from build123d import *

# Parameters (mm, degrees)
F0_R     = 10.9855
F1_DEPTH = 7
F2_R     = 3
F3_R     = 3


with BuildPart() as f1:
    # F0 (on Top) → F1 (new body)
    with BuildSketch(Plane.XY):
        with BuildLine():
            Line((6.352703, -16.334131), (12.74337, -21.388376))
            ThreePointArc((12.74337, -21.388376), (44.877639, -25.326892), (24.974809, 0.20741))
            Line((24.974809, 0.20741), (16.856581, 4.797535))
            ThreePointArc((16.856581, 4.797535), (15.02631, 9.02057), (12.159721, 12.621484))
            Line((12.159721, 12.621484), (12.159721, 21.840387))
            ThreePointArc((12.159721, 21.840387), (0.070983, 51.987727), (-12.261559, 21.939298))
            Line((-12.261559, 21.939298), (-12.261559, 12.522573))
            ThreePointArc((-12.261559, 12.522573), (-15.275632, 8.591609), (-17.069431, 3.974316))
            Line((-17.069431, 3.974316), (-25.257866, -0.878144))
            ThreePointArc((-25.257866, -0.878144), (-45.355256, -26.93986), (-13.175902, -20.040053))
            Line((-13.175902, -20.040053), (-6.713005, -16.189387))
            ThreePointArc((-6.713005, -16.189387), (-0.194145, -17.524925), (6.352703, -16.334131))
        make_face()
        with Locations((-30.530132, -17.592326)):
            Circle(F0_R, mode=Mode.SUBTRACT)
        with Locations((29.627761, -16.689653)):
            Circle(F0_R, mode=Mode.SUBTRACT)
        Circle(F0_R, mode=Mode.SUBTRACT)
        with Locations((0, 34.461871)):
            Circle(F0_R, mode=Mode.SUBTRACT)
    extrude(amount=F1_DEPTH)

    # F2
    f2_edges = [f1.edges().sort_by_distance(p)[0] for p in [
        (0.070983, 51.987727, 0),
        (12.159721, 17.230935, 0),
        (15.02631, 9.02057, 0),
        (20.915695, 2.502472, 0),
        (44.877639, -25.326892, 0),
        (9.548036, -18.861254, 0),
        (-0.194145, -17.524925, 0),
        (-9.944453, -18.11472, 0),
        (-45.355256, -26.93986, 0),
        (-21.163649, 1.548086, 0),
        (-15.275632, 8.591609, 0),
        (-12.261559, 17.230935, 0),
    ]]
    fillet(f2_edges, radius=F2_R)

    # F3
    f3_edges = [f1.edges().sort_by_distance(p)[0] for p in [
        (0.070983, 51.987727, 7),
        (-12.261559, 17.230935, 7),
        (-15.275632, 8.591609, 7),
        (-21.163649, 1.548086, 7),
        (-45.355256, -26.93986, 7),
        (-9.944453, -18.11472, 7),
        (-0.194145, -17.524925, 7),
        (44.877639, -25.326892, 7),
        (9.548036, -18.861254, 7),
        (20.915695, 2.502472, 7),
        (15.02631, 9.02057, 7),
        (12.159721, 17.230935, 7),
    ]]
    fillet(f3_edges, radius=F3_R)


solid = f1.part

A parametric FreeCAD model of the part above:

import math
import FreeCAD as App
import Part
import Sketcher
from FreeCAD import Vector


def edges_at(feature, points):
    """Names of the edges that pass closest to the given points."""
    edges = feature.Shape.Edges
    near = lambda p: min(range(len(edges)), key=lambda i: edges[i].distToShape(Part.Vertex(*p))[0])
    return sorted({f"Edge{near(p) + 1}" for p in points})

doc = App.newDocument("Part")
body = doc.addObject("PartDesign::Body", "Body")

sketch1 = body.newObject("Sketcher::SketchObject", "Sketch")
sketch1.AttachmentSupport = (doc.getObject("XY_Plane"), [""])
sketch1.MapMode = "FlatFace"
sketch1.addGeometry(Part.LineSegment(Vector(6.352703, -16.334131, 0), Vector(12.74337, -21.388376, 0)), False)
sketch1.addGeometry(Part.ArcOfCircle(Part.Circle(Vector(29.627761, -16.689652, 0), Vector(0, 0, 1), 17.526), math.radians(-164.448752), math.radians(105.395985)), False)
sketch1.addGeometry(Part.LineSegment(Vector(24.974809, 0.20741, 0), Vector(16.856581, 4.797535, 0)), False)
sketch1.addGeometry(Part.ArcOfCircle(Part.Circle(Vector(0.000004, 0.000003, 0), Vector(0, 0, 1), 17.525995), math.radians(15.886825), math.radians(46.067506)), False)
sketch1.addGeometry(Part.LineSegment(Vector(12.159721, 12.621484, 0), Vector(12.159721, 21.840387, 0)), False)
sketch1.addGeometry(Part.ArcOfCircle(Part.Circle(Vector(0, 34.461871, 0), Vector(0, 0, 1), 17.526), math.radians(-46.067503), math.radians(225.603387)), False)
sketch1.addGeometry(Part.LineSegment(Vector(-12.261559, 21.939298, 0), Vector(-12.261559, 12.522573, 0)), False)
sketch1.addGeometry(Part.ArcOfCircle(Part.Circle(Vector(-0.000009, 0.000005, 0), Vector(0, 0, 1), 17.525989), math.radians(134.396602), math.radians(166.893212)), False)
sketch1.addGeometry(Part.LineSegment(Vector(-17.069431, 3.974316, 0), Vector(-25.257866, -0.878144, 0)), False)
sketch1.addGeometry(Part.ArcOfCircle(Part.Circle(Vector(-30.530132, -17.592326, 0), Vector(0, 0, 1), 17.526), math.radians(72.492813), math.radians(351.971677)), False)
sketch1.addGeometry(Part.LineSegment(Vector(-13.175902, -20.040053, 0), Vector(-6.713005, -16.189387, 0)), False)
sketch1.addGeometry(Part.ArcOfCircle(Part.Circle(Vector(-0.000001, -0.000004, 0), Vector(0, 0, 1), 17.525997), math.radians(-112.521572), math.radians(-68.74784)), False)
sketch1.addGeometry(Part.Circle(Vector(-30.530132, -17.592326, 0), Vector(0, 0, 1), 10.9855), False)
sketch1.addGeometry(Part.Circle(Vector(29.627761, -16.689653, 0), Vector(0, 0, 1), 10.9855), False)
sketch1.addGeometry(Part.Circle(Vector(0, 0, 0), Vector(0, 0, 1), 10.9855), False)
sketch1.addGeometry(Part.Circle(Vector(0, 34.461871, 0), Vector(0, 0, 1), 10.9855), False)
sketch1.addConstraint(Sketcher.Constraint("Coincident", 0, 2, 1, 1))
sketch1.addConstraint(Sketcher.Constraint("Coincident", 1, 2, 2, 1))
sketch1.addConstraint(Sketcher.Constraint("Coincident", 2, 2, 3, 1))
sketch1.addConstraint(Sketcher.Constraint("Coincident", 3, 2, 4, 1))
sketch1.addConstraint(Sketcher.Constraint("Coincident", 4, 2, 5, 1))
sketch1.addConstraint(Sketcher.Constraint("Coincident", 5, 2, 6, 1))
sketch1.addConstraint(Sketcher.Constraint("Coincident", 6, 2, 7, 1))
sketch1.addConstraint(Sketcher.Constraint("Coincident", 7, 2, 8, 1))
sketch1.addConstraint(Sketcher.Constraint("Coincident", 8, 2, 9, 1))
sketch1.addConstraint(Sketcher.Constraint("Coincident", 9, 2, 10, 1))
sketch1.addConstraint(Sketcher.Constraint("Coincident", 10, 2, 11, 1))
sketch1.addConstraint(Sketcher.Constraint("Coincident", 11, 2, 0, 1))
sketch1.addConstraint(Sketcher.Constraint("Vertical", 4))
sketch1.addConstraint(Sketcher.Constraint("Vertical", 6))
sketch1.addConstraint(Sketcher.Constraint("Coincident", 3, 3, -1, 1))
sketch1.addConstraint(Sketcher.Constraint("Coincident", 11, 3, -1, 1))
sketch1.addConstraint(Sketcher.Constraint("Coincident", 14, 3, -1, 1))
sketch1.addConstraint(Sketcher.Constraint("Coincident", 12, 3, 9, 3))
sketch1.addConstraint(Sketcher.Constraint("Coincident", 13, 3, 1, 3))
sketch1.addConstraint(Sketcher.Constraint("Coincident", 15, 3, 5, 3))
sketch1.addConstraint(Sketcher.Constraint("PointOnObject", 5, 3, -2))
sketch1.addConstraint(Sketcher.Constraint("Diameter", 12, 21.971))
sketch1.addConstraint(Sketcher.Constraint("Diameter", 13, 21.971))
sketch1.addConstraint(Sketcher.Constraint("Diameter", 14, 21.971))
sketch1.addConstraint(Sketcher.Constraint("Diameter", 15, 21.971))
sketch1.addConstraint(Sketcher.Constraint("Radius", 1, 17.526))
sketch1.addConstraint(Sketcher.Constraint("Radius", 5, 17.526))
sketch1.addConstraint(Sketcher.Constraint("Radius", 9, 17.526))
sketch1.addConstraint(Sketcher.Constraint("Radius", 7, 17.525989))
sketch1.addConstraint(Sketcher.Constraint("Radius", 3, 17.525995))
sketch1.addConstraint(Sketcher.Constraint("Radius", 11, 17.525997))
sketch1.addConstraint(Sketcher.Constraint("DistanceY", -1, 1, 5, 2, 21.939298))
sketch1.addConstraint(Sketcher.Constraint("DistanceX", 9, 2, 11, 3, 13.175901))
sketch1.addConstraint(Sketcher.Constraint("DistanceX", 3, 3, 11, 2, 6.352699))
sketch1.addConstraint(Sketcher.Constraint("Distance", 0, 8.147761))
sketch1.addConstraint(Sketcher.Constraint("DistanceY", 4, 1, 4, 2, 9.218903))
sketch1.addConstraint(Sketcher.Constraint("DistanceY", 6, 2, 6, 1, 9.416725))
sketch1.addConstraint(Sketcher.Constraint("DistanceX", -1, 1, 1, 3, 29.627761))
sketch1.addConstraint(Sketcher.Constraint("DistanceY", -1, 1, 5, 3, 34.461871))
sketch1.addConstraint(Sketcher.Constraint("DistanceX", 12, 3, -1, 1, 30.530132))
sketch1.addConstraint(Sketcher.Constraint("DistanceX", -1, 1, 0, 2, 12.74337))
sketch1.addConstraint(Sketcher.Constraint("DistanceX", -1, 1, 1, 2, 24.974809))
sketch1.addConstraint(Sketcher.Constraint("DistanceX", -1, 1, 2, 2, 16.856581))
sketch1.addConstraint(Sketcher.Constraint("DistanceX", 7, 2, -1, 1, 17.069431))
sketch1.addConstraint(Sketcher.Constraint("DistanceX", 7, 3, 1, 3, 29.627771))
sketch1.addConstraint(Sketcher.Constraint("DistanceY", 9, 3, 7, 3, 17.592332))
sketch1.addConstraint(Sketcher.Constraint("DistanceY", 8, 2, 7, 2, 4.85246))
sketch1.addConstraint(Sketcher.Constraint("DistanceX", 10, 2, 3, 3, 6.713009))
pad1 = body.newObject("PartDesign::Pad", "Pad")
pad1.Profile = sketch1
pad1.Length = 7
doc.recompute()

fillet = body.newObject("PartDesign::Fillet", "Fillet")
fillet.Base = (pad1, edges_at(pad1, [
    (0.071, 51.988, 0),
    (12.16, 17.231, 0),
    (15.026, 9.021, 0),
    (20.916, 2.502, 0),
    (44.878, -25.327, 0),
    (9.548, -18.861, 0),
    (-0.194, -17.525, 0),
    (-9.944, -18.115, 0),
    (-45.355, -26.94, 0),
    (-21.164, 1.548, 0),
    (-15.276, 8.592, 0),
    (-12.262, 17.231, 0),
]))
fillet.Radius = 3
doc.recompute()

fillet2 = body.newObject("PartDesign::Fillet", "Fillet001")
fillet2.Base = (fillet, edges_at(fillet, [
    (0.071, 51.988, 7),
    (-12.262, 17.231, 7),
    (-15.276, 8.592, 7),
    (-21.164, 1.548, 7),
    (-45.355, -26.94, 7),
    (-9.944, -18.115, 7),
    (-0.194, -17.525, 7),
    (44.878, -25.327, 7),
    (9.548, -18.861, 7),
    (20.916, 2.502, 7),
    (15.026, 9.021, 7),
    (12.16, 17.231, 7),
]))
fillet2.Radius = 3

doc.recompute()
